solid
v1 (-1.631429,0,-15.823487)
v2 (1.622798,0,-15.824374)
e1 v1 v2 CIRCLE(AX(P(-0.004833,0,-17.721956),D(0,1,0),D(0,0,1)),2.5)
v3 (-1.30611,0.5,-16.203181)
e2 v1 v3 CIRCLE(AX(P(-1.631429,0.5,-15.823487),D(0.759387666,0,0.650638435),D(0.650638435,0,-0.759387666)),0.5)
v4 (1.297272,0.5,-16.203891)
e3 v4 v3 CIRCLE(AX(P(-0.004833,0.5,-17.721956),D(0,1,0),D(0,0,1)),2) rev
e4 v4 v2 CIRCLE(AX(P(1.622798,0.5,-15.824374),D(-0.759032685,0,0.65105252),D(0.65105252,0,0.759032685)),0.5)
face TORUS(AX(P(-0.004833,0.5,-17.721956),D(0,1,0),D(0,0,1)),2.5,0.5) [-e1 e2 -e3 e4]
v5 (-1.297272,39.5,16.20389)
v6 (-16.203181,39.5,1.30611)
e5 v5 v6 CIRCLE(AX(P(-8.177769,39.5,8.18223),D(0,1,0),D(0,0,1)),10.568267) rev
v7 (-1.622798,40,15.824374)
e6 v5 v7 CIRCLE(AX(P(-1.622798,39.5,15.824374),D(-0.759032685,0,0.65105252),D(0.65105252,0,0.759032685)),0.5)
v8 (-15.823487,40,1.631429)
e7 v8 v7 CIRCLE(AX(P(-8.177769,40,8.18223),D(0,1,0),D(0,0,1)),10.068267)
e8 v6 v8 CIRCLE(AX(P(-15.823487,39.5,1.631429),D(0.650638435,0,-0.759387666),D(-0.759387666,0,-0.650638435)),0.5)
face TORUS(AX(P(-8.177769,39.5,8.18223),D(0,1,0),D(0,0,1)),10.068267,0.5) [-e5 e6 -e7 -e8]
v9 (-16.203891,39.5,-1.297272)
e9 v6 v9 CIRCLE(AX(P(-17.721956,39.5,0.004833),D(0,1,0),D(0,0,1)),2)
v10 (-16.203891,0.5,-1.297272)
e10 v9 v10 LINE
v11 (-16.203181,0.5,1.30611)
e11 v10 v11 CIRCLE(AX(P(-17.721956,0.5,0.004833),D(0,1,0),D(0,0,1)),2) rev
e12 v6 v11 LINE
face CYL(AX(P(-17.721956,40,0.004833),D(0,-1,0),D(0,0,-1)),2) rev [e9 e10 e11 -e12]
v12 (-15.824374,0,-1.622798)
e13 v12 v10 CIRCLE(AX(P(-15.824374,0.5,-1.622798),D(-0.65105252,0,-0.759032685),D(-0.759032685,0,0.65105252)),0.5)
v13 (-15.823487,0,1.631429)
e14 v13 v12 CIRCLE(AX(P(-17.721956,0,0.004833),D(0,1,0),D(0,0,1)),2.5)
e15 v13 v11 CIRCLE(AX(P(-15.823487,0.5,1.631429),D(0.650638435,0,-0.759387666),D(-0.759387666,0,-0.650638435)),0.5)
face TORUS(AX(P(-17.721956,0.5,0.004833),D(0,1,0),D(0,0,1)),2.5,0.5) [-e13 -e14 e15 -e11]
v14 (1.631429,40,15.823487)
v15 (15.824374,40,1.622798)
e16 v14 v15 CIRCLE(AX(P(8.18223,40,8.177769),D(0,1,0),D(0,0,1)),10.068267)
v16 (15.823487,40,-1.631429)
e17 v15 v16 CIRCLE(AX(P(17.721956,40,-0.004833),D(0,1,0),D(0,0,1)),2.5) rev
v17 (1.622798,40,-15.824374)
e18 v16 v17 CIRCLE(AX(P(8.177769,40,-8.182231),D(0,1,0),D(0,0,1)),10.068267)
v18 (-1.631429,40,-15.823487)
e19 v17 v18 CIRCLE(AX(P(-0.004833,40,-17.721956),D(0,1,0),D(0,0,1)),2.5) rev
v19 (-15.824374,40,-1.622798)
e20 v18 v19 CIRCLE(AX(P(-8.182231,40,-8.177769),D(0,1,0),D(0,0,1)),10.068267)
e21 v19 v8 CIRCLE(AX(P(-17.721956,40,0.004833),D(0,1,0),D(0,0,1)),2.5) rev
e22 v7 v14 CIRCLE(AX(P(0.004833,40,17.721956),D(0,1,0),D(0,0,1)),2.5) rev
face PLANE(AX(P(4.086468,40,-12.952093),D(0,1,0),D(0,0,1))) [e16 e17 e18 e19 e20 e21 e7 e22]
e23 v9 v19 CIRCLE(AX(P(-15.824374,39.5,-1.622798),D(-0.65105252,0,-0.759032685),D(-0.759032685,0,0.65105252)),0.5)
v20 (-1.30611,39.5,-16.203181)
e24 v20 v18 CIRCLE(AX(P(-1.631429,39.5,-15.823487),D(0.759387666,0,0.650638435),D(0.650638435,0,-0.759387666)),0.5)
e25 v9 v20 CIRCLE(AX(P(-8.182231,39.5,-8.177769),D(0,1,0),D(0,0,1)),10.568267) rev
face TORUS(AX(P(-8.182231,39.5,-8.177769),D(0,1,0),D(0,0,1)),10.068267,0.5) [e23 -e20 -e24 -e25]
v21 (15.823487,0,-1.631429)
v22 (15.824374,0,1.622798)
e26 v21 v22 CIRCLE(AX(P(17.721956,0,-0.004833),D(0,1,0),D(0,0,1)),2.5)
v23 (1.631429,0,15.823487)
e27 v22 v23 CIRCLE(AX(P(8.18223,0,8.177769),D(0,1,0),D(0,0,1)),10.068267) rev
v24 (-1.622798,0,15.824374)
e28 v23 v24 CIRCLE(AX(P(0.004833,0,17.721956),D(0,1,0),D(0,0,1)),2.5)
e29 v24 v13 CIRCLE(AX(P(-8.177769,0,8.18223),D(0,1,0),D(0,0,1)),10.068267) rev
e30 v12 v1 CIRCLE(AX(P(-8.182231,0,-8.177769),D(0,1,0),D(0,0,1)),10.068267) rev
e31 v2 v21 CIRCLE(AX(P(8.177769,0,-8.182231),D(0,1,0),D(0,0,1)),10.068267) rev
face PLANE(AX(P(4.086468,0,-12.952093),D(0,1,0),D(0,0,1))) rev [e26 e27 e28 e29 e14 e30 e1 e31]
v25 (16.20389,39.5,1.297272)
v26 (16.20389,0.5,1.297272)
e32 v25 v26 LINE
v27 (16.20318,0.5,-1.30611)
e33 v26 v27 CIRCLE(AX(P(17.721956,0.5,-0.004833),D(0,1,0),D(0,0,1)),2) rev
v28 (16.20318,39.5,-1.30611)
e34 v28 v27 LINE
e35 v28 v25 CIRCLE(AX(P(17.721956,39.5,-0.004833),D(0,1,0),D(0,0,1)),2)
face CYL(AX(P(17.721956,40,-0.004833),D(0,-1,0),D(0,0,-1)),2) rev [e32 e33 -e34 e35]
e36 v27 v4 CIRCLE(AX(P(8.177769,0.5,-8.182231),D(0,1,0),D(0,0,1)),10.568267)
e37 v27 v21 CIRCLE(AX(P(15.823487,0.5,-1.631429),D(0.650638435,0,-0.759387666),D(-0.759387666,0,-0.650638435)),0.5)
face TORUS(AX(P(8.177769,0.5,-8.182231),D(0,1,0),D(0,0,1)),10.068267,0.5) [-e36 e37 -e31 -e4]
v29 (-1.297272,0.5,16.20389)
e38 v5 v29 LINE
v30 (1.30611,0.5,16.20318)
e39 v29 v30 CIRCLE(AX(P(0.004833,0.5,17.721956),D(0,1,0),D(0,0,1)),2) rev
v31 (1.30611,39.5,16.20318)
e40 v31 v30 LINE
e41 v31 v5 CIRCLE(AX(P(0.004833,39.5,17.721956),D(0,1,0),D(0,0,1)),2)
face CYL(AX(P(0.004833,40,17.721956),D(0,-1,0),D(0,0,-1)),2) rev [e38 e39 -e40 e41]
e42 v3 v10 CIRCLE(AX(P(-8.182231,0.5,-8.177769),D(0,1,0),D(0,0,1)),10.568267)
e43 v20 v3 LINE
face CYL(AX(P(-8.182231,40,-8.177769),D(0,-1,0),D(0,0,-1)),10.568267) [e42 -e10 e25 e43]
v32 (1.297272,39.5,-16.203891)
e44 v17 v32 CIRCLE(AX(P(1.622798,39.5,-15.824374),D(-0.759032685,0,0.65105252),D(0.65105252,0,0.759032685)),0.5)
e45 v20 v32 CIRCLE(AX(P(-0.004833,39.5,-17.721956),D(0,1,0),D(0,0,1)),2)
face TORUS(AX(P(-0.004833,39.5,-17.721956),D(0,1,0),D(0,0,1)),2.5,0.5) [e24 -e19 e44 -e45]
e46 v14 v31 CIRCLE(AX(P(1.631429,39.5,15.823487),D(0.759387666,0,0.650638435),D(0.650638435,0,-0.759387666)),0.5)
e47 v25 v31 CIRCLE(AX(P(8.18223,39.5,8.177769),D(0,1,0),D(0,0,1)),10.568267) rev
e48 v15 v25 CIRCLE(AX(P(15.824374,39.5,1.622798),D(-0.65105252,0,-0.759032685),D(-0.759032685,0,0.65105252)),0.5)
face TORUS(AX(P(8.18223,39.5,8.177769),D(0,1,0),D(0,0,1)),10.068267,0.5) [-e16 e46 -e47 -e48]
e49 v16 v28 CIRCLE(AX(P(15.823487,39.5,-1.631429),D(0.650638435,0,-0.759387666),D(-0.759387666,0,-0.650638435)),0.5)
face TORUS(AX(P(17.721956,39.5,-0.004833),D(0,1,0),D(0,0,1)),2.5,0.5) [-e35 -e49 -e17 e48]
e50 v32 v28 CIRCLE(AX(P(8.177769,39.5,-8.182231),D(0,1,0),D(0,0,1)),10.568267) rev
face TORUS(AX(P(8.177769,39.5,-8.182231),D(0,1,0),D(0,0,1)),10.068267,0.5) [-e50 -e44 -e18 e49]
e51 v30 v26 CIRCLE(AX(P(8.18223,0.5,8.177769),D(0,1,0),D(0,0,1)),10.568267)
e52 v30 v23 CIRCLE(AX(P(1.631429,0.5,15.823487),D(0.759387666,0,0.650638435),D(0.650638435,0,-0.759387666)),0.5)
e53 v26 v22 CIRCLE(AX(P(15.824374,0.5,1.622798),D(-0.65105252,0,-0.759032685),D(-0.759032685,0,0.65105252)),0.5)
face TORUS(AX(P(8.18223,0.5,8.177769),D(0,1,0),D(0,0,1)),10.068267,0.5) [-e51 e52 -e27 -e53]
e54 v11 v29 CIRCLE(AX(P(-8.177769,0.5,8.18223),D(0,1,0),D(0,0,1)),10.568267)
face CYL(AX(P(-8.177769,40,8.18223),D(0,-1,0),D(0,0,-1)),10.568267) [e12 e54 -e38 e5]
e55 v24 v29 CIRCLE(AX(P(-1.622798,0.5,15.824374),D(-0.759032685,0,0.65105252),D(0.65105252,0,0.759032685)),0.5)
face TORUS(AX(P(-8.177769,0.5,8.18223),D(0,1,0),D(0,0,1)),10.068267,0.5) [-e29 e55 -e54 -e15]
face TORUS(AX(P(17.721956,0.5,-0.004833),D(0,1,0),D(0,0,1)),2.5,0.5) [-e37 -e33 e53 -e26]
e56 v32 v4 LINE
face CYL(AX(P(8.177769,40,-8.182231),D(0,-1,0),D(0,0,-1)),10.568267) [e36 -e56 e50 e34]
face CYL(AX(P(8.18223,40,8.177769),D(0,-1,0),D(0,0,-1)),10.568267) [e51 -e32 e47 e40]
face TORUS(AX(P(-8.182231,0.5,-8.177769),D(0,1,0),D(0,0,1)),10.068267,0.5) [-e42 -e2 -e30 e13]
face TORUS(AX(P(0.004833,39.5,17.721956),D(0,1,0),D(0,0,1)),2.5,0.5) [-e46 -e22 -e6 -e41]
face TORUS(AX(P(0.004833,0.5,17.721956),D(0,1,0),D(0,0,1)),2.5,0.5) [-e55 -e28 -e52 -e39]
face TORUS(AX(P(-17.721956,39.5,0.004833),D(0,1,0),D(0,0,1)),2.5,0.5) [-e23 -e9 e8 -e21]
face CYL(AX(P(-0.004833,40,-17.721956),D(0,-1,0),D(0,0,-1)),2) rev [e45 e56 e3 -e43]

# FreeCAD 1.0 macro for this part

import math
import FreeCAD as App
import Part
import Sketcher

V = App.Vector
Q = App.Units.Quantity


def edges_at(feature, points):
    """Names of the edges that pass closest to the given points."""
    edges = feature.Shape.Edges
    near = lambda p: min(range(len(edges)), key=lambda i: edges[i].distToShape(Part.Vertex(*p))[0])
    return sorted({f"Edge{near(p) + 1}" for p in points})

doc = App.newDocument("Part")
body = doc.addObject("PartDesign::Body", "Body")

sketch1 = body.newObject("Sketcher::SketchObject", "Sketch")
sketch1.AttachmentSupport = (doc.getObject("XZ_Plane"), [""])
sketch1.MapMode = "FlatFace"
sketch1.addGeometry([
    Part.ArcOfCircle(Part.Circle(V(8.2, -8.2, 0), V(0, 0, 1), 10.6), math.radians(-131), math.radians(41)),
    Part.ArcOfCircle(Part.Circle(V(0, -17.7, 0), V(0, 0, 1), 2), math.radians(49), math.radians(131)),
    Part.ArcOfCircle(Part.Circle(V(-8.2, -8.2, 0), V(0, 0, 1), 10.6), math.radians(139), math.radians(311)),
    Part.ArcOfCircle(Part.Circle(V(-17.7, 0, 0), V(0, 0, 1), 2), math.radians(-41), math.radians(41)),
    Part.ArcOfCircle(Part.Circle(V(-8.2, 8.2, 0), V(0, 0, 1), 10.6), math.radians(49), math.radians(221)),
    Part.ArcOfCircle(Part.Circle(V(0, 17.7, 0), V(0, 0, 1), 2), math.radians(-131), math.radians(-49)),
    Part.ArcOfCircle(Part.Circle(V(8.2, 8.2, 0), V(0, 0, 1), 10.6), math.radians(-41), math.radians(131)),
    Part.ArcOfCircle(Part.Circle(V(17.7, 0, 0), V(0, 0, 1), 2), math.radians(139), math.radians(221)),
], False)
sketch1.addConstraint([
    Sketcher.Constraint("Tangent", 0, 1, 1, 1),
    Sketcher.Constraint("Tangent", 1, 2, 2, 2),
    Sketcher.Constraint("Tangent", 2, 1, 3, 1),
    Sketcher.Constraint("Tangent", 3, 2, 4, 2),
    Sketcher.Constraint("Tangent", 4, 1, 5, 1),
    Sketcher.Constraint("Tangent", 5, 2, 6, 2),
    Sketcher.Constraint("Tangent", 6, 1, 7, 1),
    Sketcher.Constraint("Tangent", 7, 2, 0, 2),
    Sketcher.Constraint("Equal", 0, 2),
    Sketcher.Constraint("Equal", 1, 3),
    Sketcher.Constraint("Equal", 2, 4),
    Sketcher.Constraint("Equal", 3, 5),
    Sketcher.Constraint("Equal", 4, 6),
    Sketcher.Constraint("Equal", 5, 7),
    Sketcher.Constraint("Symmetric", 0, 3, 4, 3, -1, 1),
    Sketcher.Constraint("Symmetric", 2, 3, 6, 3, -1, 1),
    Sketcher.Constraint("Radius", 1, Q("2 mm")),
    Sketcher.Constraint("DistanceX", 2, 3, 0, 3, Q("16.359999 mm")),
    Sketcher.Constraint("DistanceY", 2, 3, 4, 3, Q("16.359999 mm")),
    Sketcher.Constraint("Radius", 0, Q("10.568267 mm")),
    Sketcher.Constraint("DistanceX", 1, 3, 0, 3, Q("8.182602 mm")),
    Sketcher.Constraint("DistanceY", 2, 3, 3, 3, Q("8.182602 mm")),
])
pad1 = body.newObject("PartDesign::Pad", "Pad")
pad1.Profile = sketch1
pad1.Length = 40
pad1.Reversed = True
doc.recompute()

fillet = body.newObject("PartDesign::Fillet", "Fillet")
fillet.Base = (pad1, edges_at(pad1, [
    (-15.649, 0, 15.657),
    (-15.722, 0, 0.004),
    (-15.657, 0, -15.649),
    (-0.004, 0, -15.722),
    (-15.722, 40, 0.004),
    (-15.649, 40, 15.657),
    (0.004, 40, 15.722),
    (15.657, 40, 15.649),
    (15.722, 40, -0.004),
    (15.649, 40, -15.657),
    (-0.004, 40, -15.722),
    (15.649, 0, -15.657),
    (-15.657, 40, -15.649),
    (15.722, 0, -0.004),
    (15.657, 0, 15.649),
    (0.004, 0, 15.722),
]))
fillet.Radius = 0.5

doc.recompute()
